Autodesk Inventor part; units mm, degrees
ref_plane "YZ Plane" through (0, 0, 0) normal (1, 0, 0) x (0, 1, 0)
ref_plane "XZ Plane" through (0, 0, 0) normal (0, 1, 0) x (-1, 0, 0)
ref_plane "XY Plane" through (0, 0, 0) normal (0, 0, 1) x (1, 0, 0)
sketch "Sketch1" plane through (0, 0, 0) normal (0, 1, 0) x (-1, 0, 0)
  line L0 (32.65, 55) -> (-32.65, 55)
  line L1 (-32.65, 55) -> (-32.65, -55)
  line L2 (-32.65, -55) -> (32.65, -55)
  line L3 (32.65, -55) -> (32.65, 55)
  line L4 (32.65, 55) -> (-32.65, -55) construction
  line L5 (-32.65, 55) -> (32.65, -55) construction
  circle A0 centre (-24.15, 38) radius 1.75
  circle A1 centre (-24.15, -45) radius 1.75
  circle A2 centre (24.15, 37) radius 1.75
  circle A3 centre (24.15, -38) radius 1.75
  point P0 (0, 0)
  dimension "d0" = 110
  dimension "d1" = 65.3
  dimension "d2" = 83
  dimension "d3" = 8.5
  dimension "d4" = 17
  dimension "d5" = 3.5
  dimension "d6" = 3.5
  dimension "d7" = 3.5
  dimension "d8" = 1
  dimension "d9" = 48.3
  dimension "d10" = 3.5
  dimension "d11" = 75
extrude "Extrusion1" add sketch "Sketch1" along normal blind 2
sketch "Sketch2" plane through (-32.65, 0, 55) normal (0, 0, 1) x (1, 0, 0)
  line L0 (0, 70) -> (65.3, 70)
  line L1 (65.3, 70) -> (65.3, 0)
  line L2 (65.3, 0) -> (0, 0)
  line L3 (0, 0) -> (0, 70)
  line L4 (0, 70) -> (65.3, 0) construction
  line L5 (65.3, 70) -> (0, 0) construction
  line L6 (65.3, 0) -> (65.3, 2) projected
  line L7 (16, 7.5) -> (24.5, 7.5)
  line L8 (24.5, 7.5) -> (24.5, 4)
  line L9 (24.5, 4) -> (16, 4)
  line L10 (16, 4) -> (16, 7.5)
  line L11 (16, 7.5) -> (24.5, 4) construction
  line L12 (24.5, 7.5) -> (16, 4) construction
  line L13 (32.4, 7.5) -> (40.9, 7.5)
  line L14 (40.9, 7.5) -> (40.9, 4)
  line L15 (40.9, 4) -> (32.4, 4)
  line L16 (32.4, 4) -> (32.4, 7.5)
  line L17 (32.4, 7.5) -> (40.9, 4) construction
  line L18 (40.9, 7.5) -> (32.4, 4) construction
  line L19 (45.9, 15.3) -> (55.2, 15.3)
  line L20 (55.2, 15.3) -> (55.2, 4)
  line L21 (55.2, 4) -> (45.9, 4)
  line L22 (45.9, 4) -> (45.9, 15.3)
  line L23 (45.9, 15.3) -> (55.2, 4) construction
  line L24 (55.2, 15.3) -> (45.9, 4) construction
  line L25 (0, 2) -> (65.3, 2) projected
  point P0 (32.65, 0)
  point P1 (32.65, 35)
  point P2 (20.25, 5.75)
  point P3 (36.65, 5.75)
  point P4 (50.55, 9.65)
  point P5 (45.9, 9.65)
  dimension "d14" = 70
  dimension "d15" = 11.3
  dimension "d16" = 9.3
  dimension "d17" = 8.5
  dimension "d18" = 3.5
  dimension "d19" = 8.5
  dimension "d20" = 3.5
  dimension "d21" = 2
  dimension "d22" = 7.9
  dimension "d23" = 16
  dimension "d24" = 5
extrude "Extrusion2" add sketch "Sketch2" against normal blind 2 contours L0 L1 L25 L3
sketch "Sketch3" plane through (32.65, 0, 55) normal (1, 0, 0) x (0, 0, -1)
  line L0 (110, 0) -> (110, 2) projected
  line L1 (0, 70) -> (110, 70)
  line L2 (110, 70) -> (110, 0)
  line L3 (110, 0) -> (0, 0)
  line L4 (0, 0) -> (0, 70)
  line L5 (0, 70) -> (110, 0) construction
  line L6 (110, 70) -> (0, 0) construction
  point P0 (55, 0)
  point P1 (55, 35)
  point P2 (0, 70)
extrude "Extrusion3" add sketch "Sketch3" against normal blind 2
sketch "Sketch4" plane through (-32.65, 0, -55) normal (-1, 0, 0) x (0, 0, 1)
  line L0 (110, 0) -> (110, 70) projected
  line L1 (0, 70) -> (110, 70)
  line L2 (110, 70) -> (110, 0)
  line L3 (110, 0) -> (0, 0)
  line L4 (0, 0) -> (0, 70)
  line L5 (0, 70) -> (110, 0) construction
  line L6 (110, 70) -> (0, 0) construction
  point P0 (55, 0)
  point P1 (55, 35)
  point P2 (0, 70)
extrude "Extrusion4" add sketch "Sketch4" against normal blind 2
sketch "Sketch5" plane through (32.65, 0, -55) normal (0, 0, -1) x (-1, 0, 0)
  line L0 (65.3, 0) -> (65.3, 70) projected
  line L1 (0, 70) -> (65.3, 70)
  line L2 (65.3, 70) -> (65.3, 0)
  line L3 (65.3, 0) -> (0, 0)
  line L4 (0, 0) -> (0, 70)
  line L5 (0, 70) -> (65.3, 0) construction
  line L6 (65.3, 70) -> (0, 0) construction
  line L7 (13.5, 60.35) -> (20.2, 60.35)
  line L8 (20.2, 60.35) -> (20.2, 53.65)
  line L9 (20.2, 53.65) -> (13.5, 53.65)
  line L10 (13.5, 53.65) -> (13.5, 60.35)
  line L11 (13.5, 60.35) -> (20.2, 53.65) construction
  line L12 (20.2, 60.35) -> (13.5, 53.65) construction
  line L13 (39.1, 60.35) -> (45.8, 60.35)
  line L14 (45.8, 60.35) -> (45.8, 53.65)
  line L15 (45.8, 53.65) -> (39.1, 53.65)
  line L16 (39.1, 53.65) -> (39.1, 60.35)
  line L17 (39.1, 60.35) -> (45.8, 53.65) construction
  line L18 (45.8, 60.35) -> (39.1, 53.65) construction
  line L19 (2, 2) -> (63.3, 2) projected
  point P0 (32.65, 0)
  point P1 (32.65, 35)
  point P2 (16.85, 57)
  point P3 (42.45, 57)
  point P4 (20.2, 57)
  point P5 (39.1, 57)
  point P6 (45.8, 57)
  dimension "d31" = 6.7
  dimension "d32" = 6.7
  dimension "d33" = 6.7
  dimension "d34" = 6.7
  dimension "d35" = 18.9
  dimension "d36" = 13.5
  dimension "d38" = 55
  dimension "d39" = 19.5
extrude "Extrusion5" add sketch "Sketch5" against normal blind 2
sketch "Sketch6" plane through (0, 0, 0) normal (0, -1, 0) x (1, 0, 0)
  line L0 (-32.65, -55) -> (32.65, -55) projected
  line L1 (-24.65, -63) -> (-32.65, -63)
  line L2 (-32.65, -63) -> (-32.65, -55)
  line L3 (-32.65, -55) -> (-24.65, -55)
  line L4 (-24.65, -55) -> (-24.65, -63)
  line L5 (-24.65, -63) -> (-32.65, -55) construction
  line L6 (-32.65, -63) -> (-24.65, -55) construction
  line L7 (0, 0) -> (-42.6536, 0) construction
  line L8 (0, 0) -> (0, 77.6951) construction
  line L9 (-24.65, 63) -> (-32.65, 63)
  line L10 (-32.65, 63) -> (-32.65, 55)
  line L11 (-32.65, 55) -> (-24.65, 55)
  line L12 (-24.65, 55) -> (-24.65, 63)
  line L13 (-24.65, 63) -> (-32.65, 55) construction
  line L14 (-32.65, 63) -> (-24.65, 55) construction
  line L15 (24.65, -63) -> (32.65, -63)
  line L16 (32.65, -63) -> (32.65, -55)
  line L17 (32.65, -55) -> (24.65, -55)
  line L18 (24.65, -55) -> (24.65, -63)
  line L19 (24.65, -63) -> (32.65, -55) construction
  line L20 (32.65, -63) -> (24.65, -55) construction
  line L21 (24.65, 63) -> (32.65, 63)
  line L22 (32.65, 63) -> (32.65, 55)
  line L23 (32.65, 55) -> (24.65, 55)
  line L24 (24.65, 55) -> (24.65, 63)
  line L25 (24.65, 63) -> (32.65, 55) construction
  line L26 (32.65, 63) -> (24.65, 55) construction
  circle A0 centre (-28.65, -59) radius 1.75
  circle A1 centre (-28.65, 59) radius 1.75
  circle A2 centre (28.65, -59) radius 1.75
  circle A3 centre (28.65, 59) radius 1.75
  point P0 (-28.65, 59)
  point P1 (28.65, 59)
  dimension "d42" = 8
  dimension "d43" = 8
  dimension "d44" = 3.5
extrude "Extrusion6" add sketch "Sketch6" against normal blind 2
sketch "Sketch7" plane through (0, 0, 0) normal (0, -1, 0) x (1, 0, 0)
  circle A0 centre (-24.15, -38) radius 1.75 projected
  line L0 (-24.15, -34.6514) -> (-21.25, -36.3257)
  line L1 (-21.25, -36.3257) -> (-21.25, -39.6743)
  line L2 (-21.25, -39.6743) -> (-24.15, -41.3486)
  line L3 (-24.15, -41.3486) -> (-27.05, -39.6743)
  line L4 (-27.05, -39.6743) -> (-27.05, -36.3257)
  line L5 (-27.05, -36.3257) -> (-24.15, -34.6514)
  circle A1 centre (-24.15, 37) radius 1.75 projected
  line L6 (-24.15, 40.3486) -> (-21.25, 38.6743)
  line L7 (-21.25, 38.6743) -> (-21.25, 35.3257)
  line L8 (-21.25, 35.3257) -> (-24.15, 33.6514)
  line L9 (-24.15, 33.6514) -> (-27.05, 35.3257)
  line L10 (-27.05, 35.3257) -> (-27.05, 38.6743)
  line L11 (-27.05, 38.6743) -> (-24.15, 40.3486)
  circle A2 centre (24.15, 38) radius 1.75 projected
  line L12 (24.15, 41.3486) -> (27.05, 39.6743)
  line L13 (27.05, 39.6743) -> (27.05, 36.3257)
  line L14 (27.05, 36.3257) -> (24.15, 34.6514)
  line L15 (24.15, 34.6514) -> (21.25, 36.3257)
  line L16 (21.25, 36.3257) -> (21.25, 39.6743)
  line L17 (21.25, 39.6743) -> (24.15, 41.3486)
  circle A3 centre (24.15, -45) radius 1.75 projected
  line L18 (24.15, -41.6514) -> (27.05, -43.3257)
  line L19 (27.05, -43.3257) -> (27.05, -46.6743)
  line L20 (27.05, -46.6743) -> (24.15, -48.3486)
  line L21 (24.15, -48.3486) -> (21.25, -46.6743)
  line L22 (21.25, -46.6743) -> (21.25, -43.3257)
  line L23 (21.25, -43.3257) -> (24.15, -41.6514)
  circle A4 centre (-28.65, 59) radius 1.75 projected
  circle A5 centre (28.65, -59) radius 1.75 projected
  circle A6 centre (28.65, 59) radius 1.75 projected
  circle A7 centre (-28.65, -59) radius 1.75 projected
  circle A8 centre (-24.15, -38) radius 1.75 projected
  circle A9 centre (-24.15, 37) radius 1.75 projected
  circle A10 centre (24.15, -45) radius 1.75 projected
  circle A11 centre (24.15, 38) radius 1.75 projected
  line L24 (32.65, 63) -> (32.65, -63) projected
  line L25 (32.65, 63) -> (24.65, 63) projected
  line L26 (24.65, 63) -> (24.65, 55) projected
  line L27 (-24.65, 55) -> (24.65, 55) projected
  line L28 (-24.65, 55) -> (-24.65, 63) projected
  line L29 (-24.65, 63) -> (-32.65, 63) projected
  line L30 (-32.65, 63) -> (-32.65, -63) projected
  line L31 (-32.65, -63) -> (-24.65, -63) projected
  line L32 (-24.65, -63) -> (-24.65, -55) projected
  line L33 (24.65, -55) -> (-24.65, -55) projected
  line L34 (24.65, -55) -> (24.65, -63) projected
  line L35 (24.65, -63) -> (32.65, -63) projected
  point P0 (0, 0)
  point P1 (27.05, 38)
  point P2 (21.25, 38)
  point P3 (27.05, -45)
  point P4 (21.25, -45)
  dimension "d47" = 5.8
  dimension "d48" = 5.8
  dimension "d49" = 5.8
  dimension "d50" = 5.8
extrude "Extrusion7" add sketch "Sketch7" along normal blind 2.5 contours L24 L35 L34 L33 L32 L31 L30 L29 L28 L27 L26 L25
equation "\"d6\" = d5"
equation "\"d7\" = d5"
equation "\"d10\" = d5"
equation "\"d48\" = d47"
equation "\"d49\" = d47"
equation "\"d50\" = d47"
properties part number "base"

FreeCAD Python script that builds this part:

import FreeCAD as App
import Part
import Sketcher

V = App.Vector
Q = App.Units.Quantity

doc = App.newDocument("Part")
params = doc.addObject("Spreadsheet::Sheet", "Params")
for row, (alias, value) in enumerate([
    ("sketch1_diameter", "3.5 mm"),
    ("sketch1_height", "110 mm"),
    ("sketch1_width", "65.3 mm"),
    ("pad1_length", "2 mm"),
    ("sketch2_width", "8.5 mm"),
    ("sketch2_width2", "9.3 mm"),
    ("sketch2_height", "3.5 mm"),
    ("sketch2_height2", "11.3 mm"),
    ("sketch2_width3", "65.3 mm"),
    ("pad2_length", "2 mm"),
    ("sketch3_width", "70 mm"),
    ("sketch3_height", "110 mm"),
    ("pad3_length", "2 mm"),
    ("sketch4_width", "70 mm"),
    ("sketch4_height", "110 mm"),
    ("pad4_length", "2 mm"),
    ("sketch5_width", "6.7 mm"),
    ("sketch5_height", "70 mm"),
    ("pad5_length", "2 mm"),
    ("sketch6_diameter", "3.5 mm"),
    ("sketch6_width", "8 mm"),
    ("pad6_length", "2 mm"),
    ("sketch7_diameter", "3.5 mm"),
    ("sketch7_width", "8 mm"),
    ("sketch7_height", "126 mm"),
    ("sketch7_width2", "49.3 mm"),
    ("pad7_length", "2.5 mm"),
], start=1):
    params.set(f"A{row}", alias)
    params.set(f"B{row}", "=" + value)
    params.setAlias(f"B{row}", alias)

body = doc.addObject("PartDesign::Body", "Body")

sketch1 = body.newObject("Sketcher::SketchObject", "Sketch")
sketch1.AttachmentSupport = (doc.getObject("XZ_Plane"), [""])
sketch1.MapMode = "FlatFace"
sketch1.addGeometry([
    Part.LineSegment(V(-32.6, -55, 0), V(-32.6, 55, 0)),
    Part.LineSegment(V(-32.6, 55, 0), V(32.6, 55, 0)),
    Part.LineSegment(V(32.6, 55, 0), V(32.6, -55, 0)),
    Part.LineSegment(V(32.6, -55, 0), V(-32.6, -55, 0)),
    Part.Circle(V(24.1, -45, 0), V(0, 0, 1), 1.8),
    Part.Circle(V(-24.1, -38, 0), V(0, 0, 1), 1.8),
    Part.Circle(V(24.1, 38, 0), V(0, 0, 1), 1.8),
    Part.Circle(V(-24.1, 37, 0), V(0, 0, 1), 1.8),
], False)
sketch1.addConstraint([
    Sketcher.Constraint("Coincident", 0, 2, 1, 1),
    Sketcher.Constraint("Coincident", 1, 2, 2, 1),
    Sketcher.Constraint("Coincident", 2, 2, 3, 1),
    Sketcher.Constraint("Coincident", 3, 2, 0, 1),
    Sketcher.Constraint("Vertical", 0),
    Sketcher.Constraint("Horizontal", 1),
    Sketcher.Constraint("Vertical", 2),
    Sketcher.Constraint("Horizontal", 3),
    Sketcher.Constraint("Equal", 4, 5),
    Sketcher.Constraint("Equal", 5, 6),
    Sketcher.Constraint("Equal", 6, 7),
    Sketcher.Constraint("Symmetric", 5, 3, 6, 3, -1, 1),
    Sketcher.Constraint("Symmetric", 0, 2, 2, 2, -1, 1),
    Sketcher.Constraint("Vertical", 4, 3, 6, 3),
    Sketcher.Constraint("Vertical", 5, 3, 7, 3),
    Sketcher.Constraint("Diameter", 4, Q("3.5 mm")),
    Sketcher.Constraint("DistanceY", 0, 1, 0, 2, Q("110 mm")),
    Sketcher.Constraint("DistanceX", 1, 1, 1, 2, Q("65.3 mm")),
    Sketcher.Constraint("DistanceY", 4, 3, 6, 3, Q("83 mm")),
    Sketcher.Constraint("DistanceY", 7, 3, 6, 3, Q("1 mm")),
    Sketcher.Constraint("DistanceY", 5, 3, 7, 3, Q("75 mm")),
    Sketcher.Constraint("DistanceX", 5, 3, 4, 3, Q("48.3 mm")),
])
sketch1.setExpression("Constraints[15]", "Params.sketch1_diameter")
sketch1.setExpression("Constraints[16]", "Params.sketch1_height")
sketch1.setExpression("Constraints[17]", "Params.sketch1_width")
pad1 = body.newObject("PartDesign::Pad", "Pad")
pad1.Profile = sketch1
pad1.setExpression("Length", "Params.pad1_length")
pad1.Reversed = True

sketch2 = body.newObject("Sketcher::SketchObject", "Sketch001")
sketch2.AttachmentSupport = (doc.getObject("XY_Plane"), [""])
sketch2.MapMode = "FlatFace"
sketch2.AttachmentOffset = App.Placement(V(0, 0, 55), App.Rotation())
sketch2.addGeometry([
    Part.LineSegment(V(32.6, 70, 0), V(-32.6, 70, 0)),
    Part.LineSegment(V(-32.6, 70, 0), V(-32.6, 2, 0)),
    Part.LineSegment(V(-32.6, 2, 0), V(32.6, 2, 0)),
    Part.LineSegment(V(32.6, 2, 0), V(32.6, 70, 0)),
    Part.LineSegment(V(-16.6, 4, 0), V(-16.6, 7.5, 0)),
    Part.LineSegment(V(-16.6, 7.5, 0), V(-8.2, 7.5, 0)),
    Part.LineSegment(V(-8.2, 7.5, 0), V(-8.2, 4, 0)),
    Part.LineSegment(V(-8.2, 4, 0), V(-16.6, 4, 0)),
    Part.LineSegment(V(-0.2, 4, 0), V(-0.2, 7.5, 0)),
    Part.LineSegment(V(-0.2, 7.5, 0), V(8.2, 7.5, 0)),
    Part.LineSegment(V(8.2, 7.5, 0), V(8.2, 4, 0)),
    Part.LineSegment(V(8.2, 4, 0), V(-0.2, 4, 0)),
    Part.LineSegment(V(13.2, 4, 0), V(13.2, 15.3, 0)),
    Part.LineSegment(V(13.2, 15.3, 0), V(22.6, 15.3, 0)),
    Part.LineSegment(V(22.6, 15.3, 0), V(22.6, 4, 0)),
    Part.LineSegment(V(22.6, 4, 0), V(13.2, 4, 0)),
], False)
sketch2.addConstraint([
    Sketcher.Constraint("Coincident", 0, 2, 1, 1),
    Sketcher.Constraint("Coincident", 1, 2, 2, 1),
    Sketcher.Constraint("Coincident", 2, 2, 3, 1),
    Sketcher.Constraint("Coincident", 3, 2, 0, 1),
    Sketcher.Constraint("Coincident", 4, 2, 5, 1),
    Sketcher.Constraint("Coincident", 5, 2, 6, 1),
    Sketcher.Constraint("Coincident", 6, 2, 7, 1),
    Sketcher.Constraint("Coincident", 7, 2, 4, 1),
    Sketcher.Constraint("Coincident", 8, 2, 9, 1),
    Sketcher.Constraint("Coincident", 9, 2, 10, 1),
    Sketcher.Constraint("Coincident", 10, 2, 11, 1),
    Sketcher.Constraint("Coincident", 11, 2, 8, 1),
    Sketcher.Constraint("Coincident", 12, 2, 13, 1),
    Sketcher.Constraint("Coincident", 13, 2, 14, 1),
    Sketcher.Constraint("Coincident", 14, 2, 15, 1),
    Sketcher.Constraint("Coincident", 15, 2, 12, 1),
    Sketcher.Constraint("Horizontal", 0),
    Sketcher.Constraint("Vertical", 1),
    Sketcher.Constraint("Horizontal", 2),
    Sketcher.Constraint("Vertical", 3),
    Sketcher.Constraint("Vertical", 4),
    Sketcher.Constraint("Horizontal", 5),
    Sketcher.Constraint("Vertical", 6),
    Sketcher.Constraint("Horizontal", 7),
    Sketcher.Constraint("Vertical", 8),
    Sketcher.Constraint("Horizontal", 9),
    Sketcher.Constraint("Vertical", 10),
    Sketcher.Constraint("Horizontal", 11),
    Sketcher.Constraint("Vertical", 12),
    Sketcher.Constraint("Horizontal", 13),
    Sketcher.Constraint("Vertical", 14),
    Sketcher.Constraint("Horizontal", 15),
    Sketcher.Constraint("Horizontal", 5, 2, 8, 2),
    Sketcher.Constraint("Horizontal", 7, 2, 10, 2),
    Sketcher.Constraint("Horizontal", 11, 2, 14, 2),
    Sketcher.Constraint("Equal", 7, 9),
    Sketcher.Constraint("DistanceX", 5, 1, 5, 2, Q("8.5 mm")),
    Sketcher.Constraint("DistanceX", 13, 1, 13, 2, Q("9.3 mm")),
    Sketcher.Constraint("DistanceY", 4, 1, 4, 2, Q("3.5 mm")),
    Sketcher.Constraint("DistanceY", 12, 1, 12, 2, Q("11.3 mm")),
    Sketcher.Constraint("DistanceY", -1, 1, 0, 2, Q("70 mm")),
    Sketcher.Constraint("DistanceY", -1, 1, 1, 2, Q("2 mm")),
    Sketcher.Constraint("DistanceX", 1, 2, 4, 2, Q("16 mm")),
    Sketcher.Constraint("DistanceY", 1, 2, 6, 2, Q("2 mm")),
    Sketcher.Constraint("DistanceX", 9, 2, 12, 2, Q("5 mm")),
    Sketcher.Constraint("DistanceX", 5, 2, 8, 2, Q("7.9 mm")),
    Sketcher.Constraint("DistanceX", 0, 2, 0, 1, Q("65.3 mm")),
    Sketcher.Constraint("DistanceX", 0, 2, -1, 1, Q("32.65 mm")),
])
sketch2.setExpression("Constraints[36]", "Params.sketch2_width")
sketch2.setExpression("Constraints[37]", "Params.sketch2_width2")
sketch2.setExpression("Constraints[38]", "Params.sketch2_height")
sketch2.setExpression("Constraints[39]", "Params.sketch2_height2")
sketch2.setExpression("Constraints[46]", "Params.sketch2_width3")
pad2 = body.newObject("PartDesign::Pad", "Pad001")
pad2.Profile = sketch2
pad2.setExpression("Length", "Params.pad2_length")
pad2.Reversed = True

sketch3 = body.newObject("Sketcher::SketchObject", "Sketch002")
sketch3.AttachmentSupport = (doc.getObject("YZ_Plane"), [""])
sketch3.MapMode = "FlatFace"
sketch3.AttachmentOffset = App.Placement(V(0, 0, 32.65), App.Rotation())
sketch3.addGeometry([
    Part.LineSegment(V(0, 55, 0), V(0, -55, 0)),
    Part.LineSegment(V(0, -55, 0), V(70, -55, 0)),
    Part.LineSegment(V(70, -55, 0), V(70, 55, 0)),
    Part.LineSegment(V(70, 55, 0), V(0, 55, 0)),
], False)
sketch3.addConstraint([
    Sketcher.Constraint("Coincident", 0, 2, 1, 1),
    Sketcher.Constraint("Coincident", 1, 2, 2, 1),
    Sketcher.Constraint("Coincident", 2, 2, 3, 1),
    Sketcher.Constraint("Coincident", 3, 2, 0, 1),
    Sketcher.Constraint("Vertical", 0),
    Sketcher.Constraint("Horizontal", 1),
    Sketcher.Constraint("Vertical", 2),
    Sketcher.Constraint("Horizontal", 3),
    Sketcher.Constraint("Symmetric", 0, 2, 3, 2, -1, 1),
    Sketcher.Constraint("DistanceX", 1, 1, 1, 2, Q("70 mm")),
    Sketcher.Constraint("DistanceY", 0, 2, 0, 1, Q("110 mm")),
])
sketch3.setExpression("Constraints[9]", "Params.sketch3_width")
sketch3.setExpression("Constraints[10]", "Params.sketch3_height")
pad3 = body.newObject("PartDesign::Pad", "Pad002")
pad3.Profile = sketch3
pad3.setExpression("Length", "Params.pad3_length")
pad3.Reversed = True

sketch4 = body.newObject("Sketcher::SketchObject", "Sketch003")
sketch4.AttachmentSupport = (doc.getObject("YZ_Plane"), [""])
sketch4.MapMode = "FlatFace"
sketch4.AttachmentOffset = App.Placement(V(0, 0, -32.65), App.Rotation())
sketch4.addGeometry([
    Part.LineSegment(V(0, -55, 0), V(0, 55, 0)),
    Part.LineSegment(V(0, 55, 0), V(70, 55, 0)),
    Part.LineSegment(V(70, 55, 0), V(70, -55, 0)),
    Part.LineSegment(V(70, -55, 0), V(0, -55, 0)),
], False)
sketch4.addConstraint([
    Sketcher.Constraint("Coincident", 0, 2, 1, 1),
    Sketcher.Constraint("Coincident", 1, 2, 2, 1),
    Sketcher.Constraint("Coincident", 2, 2, 3, 1),
    Sketcher.Constraint("Coincident", 3, 2, 0, 1),
    Sketcher.Constraint("Vertical", 0),
    Sketcher.Constraint("Horizontal", 1),
    Sketcher.Constraint("Vertical", 2),
    Sketcher.Constraint("Horizontal", 3),
    Sketcher.Constraint("Symmetric", 0, 2, 3, 2, -1, 1),
    Sketcher.Constraint("DistanceX", 1, 1, 1, 2, Q("70 mm")),
    Sketcher.Constraint("DistanceY", 0, 1, 0, 2, Q("110 mm")),
])
sketch4.setExpression("Constraints[9]", "Params.sketch4_width")
sketch4.setExpression("Constraints[10]", "Params.sketch4_height")
pad4 = body.newObject("PartDesign::Pad", "Pad003")
pad4.Profile = sketch4
pad4.setExpression("Length", "Params.pad4_length")

sketch5 = body.newObject("Sketcher::SketchObject", "Sketch004")
sketch5.AttachmentSupport = (doc.getObject("XY_Plane"), [""])
sketch5.MapMode = "FlatFace"
sketch5.AttachmentOffset = App.Placement(V(0, 0, -55), App.Rotation())
sketch5.addGeometry([
    Part.LineSegment(V(33, 0, 0), V(-33, 0, 0)),
    Part.LineSegment(V(-33, 0, 0), V(-33, 70, 0)),
    Part.LineSegment(V(-33, 70, 0), V(33, 70, 0)),
    Part.LineSegment(V(33, 70, 0), V(33, 0, 0)),
    Part.LineSegment(V(19, 54, 0), V(19, 60, 0)),
    Part.LineSegment(V(19, 60, 0), V(12, 60, 0)),
    Part.LineSegment(V(12, 60, 0), V(12, 54, 0)),
    Part.LineSegment(V(12, 54, 0), V(19, 54, 0)),
    Part.LineSegment(V(-6, 54, 0), V(-6, 60, 0)),
    Part.LineSegment(V(-6, 60, 0), V(-13, 60, 0)),
    Part.LineSegment(V(-13, 60, 0), V(-13, 54, 0)),
    Part.LineSegment(V(-13, 54, 0), V(-6, 54, 0)),
], False)
sketch5.addConstraint([
    Sketcher.Constraint("Coincident", 0, 2, 1, 1),
    Sketcher.Constraint("Coincident", 1, 2, 2, 1),
    Sketcher.Constraint("Coincident", 2, 2, 3, 1),
    Sketcher.Constraint("Coincident", 3, 2, 0, 1),
    Sketcher.Constraint("Coincident", 4, 2, 5, 1),
    Sketcher.Constraint("Coincident", 5, 2, 6, 1),
    Sketcher.Constraint("Coincident", 6, 2, 7, 1),
    Sketcher.Constraint("Coincident", 7, 2, 4, 1),
    Sketcher.Constraint("Coincident", 8, 2, 9, 1),
    Sketcher.Constraint("Coincident", 9, 2, 10, 1),
    Sketcher.Constraint("Coincident", 10, 2, 11, 1),
    Sketcher.Constraint("Coincident", 11, 2, 8, 1),
    Sketcher.Constraint("Horizontal", 0),
    Sketcher.Constraint("Vertical", 1),
    Sketcher.Constraint("Horizontal", 2),
    Sketcher.Constraint("Vertical", 3),
    Sketcher.Constraint("Vertical", 4),
    Sketcher.Constraint("Horizontal", 5),
    Sketcher.Constraint("Vertical", 6),
    Sketcher.Constraint("Horizontal", 7),
    Sketcher.Constraint("Vertical", 8),
    Sketcher.Constraint("Horizontal", 9),
    Sketcher.Constraint("Vertical", 10),
    Sketcher.Constraint("Horizontal", 11),
    Sketcher.Constraint("Symmetric", 0, 2, 3, 2, -1, 1),
    Sketcher.Constraint("Horizontal", 5, 2, 8, 2),
    Sketcher.Constraint("Horizontal", 7, 2, 10, 2),
    Sketcher.Constraint("Equal", 7, 9),
    Sketcher.Constraint("Equal", 11, 4),
    Sketcher.Constraint("DistanceX", 5, 2, 5, 1, Q("6.7 mm")),
    Sketcher.Constraint("DistanceX", 4, 2, 2, 2, Q("13.5 mm")),
    Sketcher.Constraint("DistanceX", 8, 2, 5, 2, Q("18.9 mm")),
    Sketcher.Constraint("DistanceX", 1, 2, 9, 2, Q("19.5 mm")),
    Sketcher.Constraint("DistanceY", 1, 1, 1, 2, Q("70 mm")),
    Sketcher.Constraint("DistanceY", -1, 1, 4, 2, Q("60.35 mm")),
])
sketch5.setExpression("Constraints[29]", "Params.sketch5_width")
sketch5.setExpression("Constraints[33]", "Params.sketch5_height")
pad5 = body.newObject("PartDesign::Pad", "Pad004")
pad5.Profile = sketch5
pad5.setExpression("Length", "Params.pad5_length")

sketch6 = body.newObject("Sketcher::SketchObject", "Sketch005")
sketch6.AttachmentSupport = (doc.getObject("XZ_Plane"), [""])
sketch6.MapMode = "FlatFace"
sketch6.addGeometry([
    Part.LineSegment(V(32.6, -55, 0), V(24.6, -55, 0)),
    Part.LineSegment(V(24.6, -55, 0), V(24.6, -63, 0)),
    Part.LineSegment(V(24.6, -63, 0), V(32.6, -63, 0)),
    Part.LineSegment(V(32.6, -63, 0), V(32.6, -55, 0)),
    Part.Circle(V(28.6, -59, 0), V(0, 0, 1), 1.8),
    Part.LineSegment(V(-24.6, -55, 0), V(-32.6, -55, 0)),
    Part.LineSegment(V(-32.6, -55, 0), V(-32.6, -63, 0)),
    Part.LineSegment(V(-32.6, -63, 0), V(-24.6, -63, 0)),
    Part.LineSegment(V(-24.6, -63, 0), V(-24.6, -55, 0)),
    Part.Circle(V(-28.6, -59, 0), V(0, 0, 1), 1.8),
    Part.LineSegment(V(-24.6, 55, 0), V(-24.6, 63, 0)),
    Part.LineSegment(V(-24.6, 63, 0), V(-32.6, 63, 0)),
    Part.LineSegment(V(-32.6, 63, 0), V(-32.6, 55, 0)),
    Part.LineSegment(V(-32.6, 55, 0), V(-24.6, 55, 0)),
    Part.Circle(V(-28.6, 59, 0), V(0, 0, 1), 1.8),
    Part.LineSegment(V(32.6, 63, 0), V(24.6, 63, 0)),
    Part.LineSegment(V(24.6, 63, 0), V(24.6, 55, 0)),
    Part.LineSegment(V(24.6, 55, 0), V(32.6, 55, 0)),
    Part.LineSegment(V(32.6, 55, 0), V(32.6, 63, 0)),
    Part.Circle(V(28.6, 59, 0), V(0, 0, 1), 1.8),
], False)
sketch6.addConstraint([
    Sketcher.Constraint("Coincident", 0, 2, 1, 1),
    Sketcher.Constraint("Coincident", 1, 2, 2, 1),
    Sketcher.Constraint("Coincident", 2, 2, 3, 1),
    Sketcher.Constraint("Coincident", 3, 2, 0, 1),
    Sketcher.Constraint("Coincident", 5, 2, 6, 1),
    Sketcher.Constraint("Coincident", 6, 2, 7, 1),
    Sketcher.Constraint("Coincident", 7, 2, 8, 1),
    Sketcher.Constraint("Coincident", 8, 2, 5, 1),
    Sketcher.Constraint("Coincident", 10, 2, 11, 1),
    Sketcher.Constraint("Coincident", 11, 2, 12, 1),
    Sketcher.Constraint("Coincident", 12, 2, 13, 1),
    Sketcher.Constraint("Coincident", 13, 2, 10, 1),
    Sketcher.Constraint("Coincident", 15, 2, 16, 1),
    Sketcher.Constraint("Coincident", 16, 2, 17, 1),
    Sketcher.Constraint("Coincident", 17, 2, 18, 1),
    Sketcher.Constraint("Coincident", 18, 2, 15, 1),
    Sketcher.Constraint("Horizontal", 0),
    Sketcher.Constraint("Vertical", 1),
    Sketcher.Constraint("Horizontal", 2),
    Sketcher.Constraint("Vertical", 3),
    Sketcher.Constraint("Horizontal", 5),
    Sketcher.Constraint("Vertical", 6),
    Sketcher.Constraint("Horizontal", 7),
    Sketcher.Constraint("Vertical", 8),
    Sketcher.Constraint("Vertical", 10),
    Sketcher.Constraint("Horizontal", 11),
    Sketcher.Constraint("Vertical", 12),
    Sketcher.Constraint("Horizontal", 13),
    Sketcher.Constraint("Horizontal", 15),
    Sketcher.Constraint("Vertical", 16),
    Sketcher.Constraint("Horizontal", 17),
    Sketcher.Constraint("Vertical", 18),
    Sketcher.Constraint("Equal", 4, 9),
    Sketcher.Constraint("Equal", 9, 14),
    Sketcher.Constraint("Equal", 14, 19),
    Sketcher.Constraint("Symmetric", 4, 3, 14, 3, -1, 1),
    Sketcher.Constraint("Symmetric", 9, 3, 19, 3, -1, 1),
    Sketcher.Constraint("Symmetric", 1, 2, 10, 2, -1, 1),
    Sketcher.Constraint("Symmetric", 3, 2, 12, 2, -1, 1),
    Sketcher.Constraint("Symmetric", 7, 2, 15, 2, -1, 1),
    Sketcher.Constraint("Symmetric", 5, 2, 17, 2, -1, 1),
    Sketcher.Constraint("Symmetric", 4, 3, 9, 3, -2),
    Sketcher.Constraint("Symmetric", 3, 2, 5, 2, -2),
    Sketcher.Constraint("Symmetric", 1, 2, 7, 2, -2),
    Sketcher.Constraint("Equal", 17, 1),
    Sketcher.Constraint("Diameter", 4, Q("3.5 mm")),
    Sketcher.Constraint("DistanceX", 0, 2, 0, 1, Q("8 mm")),
    Sketcher.Constraint("DistanceY", 4, 3, -1, 1, Q("59 mm")),
    Sketcher.Constraint("DistanceY", 0, 2, -1, 1, Q("55 mm")),
    Sketcher.Constraint("DistanceX", 0, 2, 4, 3, Q("4 mm")),
    Sketcher.Constraint("DistanceX", 9, 3, 4, 3, Q("57.3 mm")),
])
sketch6.setExpression("Constraints[45]", "Params.sketch6_diameter")
sketch6.setExpression("Constraints[46]", "Params.sketch6_width")
pad6 = body.newObject("PartDesign::Pad", "Pad005")
pad6.Profile = sketch6
pad6.setExpression("Length", "Params.pad6_length")
pad6.Reversed = True

sketch7 = body.newObject("Sketcher::SketchObject", "Sketch006")
sketch7.AttachmentSupport = (doc.getObject("XZ_Plane"), [""])
sketch7.MapMode = "FlatFace"
sketch7.addGeometry([
    Part.LineSegment(V(32.6, -63, 0), V(32.6, 63, 0)),
    Part.LineSegment(V(32.6, 63, 0), V(24.6, 63, 0)),
    Part.LineSegment(V(24.6, 63, 0), V(24.6, 55, 0)),
    Part.LineSegment(V(24.6, 55, 0), V(-24.6, 55, 0)),
    Part.LineSegment(V(-24.6, 55, 0), V(-24.6, 63, 0)),
    Part.LineSegment(V(-24.6, 63, 0), V(-32.6, 63, 0)),
    Part.LineSegment(V(-32.6, 63, 0), V(-32.6, -63, 0)),
    Part.LineSegment(V(-32.6, -63, 0), V(-24.6, -63, 0)),
    Part.LineSegment(V(-24.6, -63, 0), V(-24.6, -55, 0)),
    Part.LineSegment(V(-24.6, -55, 0), V(24.6, -55, 0)),
    Part.LineSegment(V(24.6, -55, 0), V(24.6, -63, 0)),
    Part.LineSegment(V(24.6, -63, 0), V(32.6, -63, 0)),
    Part.Circle(V(-28.6, -59, 0), V(0, 0, 1), 1.8),
    Part.LineSegment(V(-27.1, -36.3, 0), V(-24.1, -34.7, 0)),
    Part.LineSegment(V(-24.1, -34.7, 0), V(-21.2, -36.3, 0)),
    Part.LineSegment(V(-21.2, -36.3, 0), V(-21.2, -39.7, 0)),
    Part.LineSegment(V(-21.2, -39.7, 0), V(-24.1, -41.3, 0)),
    Part.LineSegment(V(-24.1, -41.3, 0), V(-27.1, -39.7, 0)),
    Part.LineSegment(V(-27.1, -39.7, 0), V(-27.1, -36.3, 0)),
    Part.Circle(V(28.6, -59, 0), V(0, 0, 1), 1.8),
    Part.LineSegment(V(21.2, -43.3, 0), V(24.1, -41.7, 0)),
    Part.LineSegment(V(24.1, -41.7, 0), V(27.1, -43.3, 0)),
    Part.LineSegment(V(27.1, -43.3, 0), V(27.1, -46.7, 0)),
    Part.LineSegment(V(27.1, -46.7, 0), V(24.1, -48.3, 0)),
    Part.LineSegment(V(24.1, -48.3, 0), V(21.2, -46.7, 0)),
    Part.LineSegment(V(21.2, -46.7, 0), V(21.2, -43.3, 0)),
    Part.LineSegment(V(-27.1, 38.7, 0), V(-24.1, 40.3, 0)),
    Part.LineSegment(V(-24.1, 40.3, 0), V(-21.2, 38.7, 0)),
    Part.LineSegment(V(-21.2, 38.7, 0), V(-21.2, 35.3, 0)),
    Part.LineSegment(V(-21.2, 35.3, 0), V(-24.1, 33.7, 0)),
    Part.LineSegment(V(-24.1, 33.7, 0), V(-27.1, 35.3, 0)),
    Part.LineSegment(V(-27.1, 35.3, 0), V(-27.1, 38.7, 0)),
    Part.Circle(V(-28.6, 59, 0), V(0, 0, 1), 1.8),
    Part.LineSegment(V(21.2, 39.7, 0), V(24.1, 41.3, 0)),
    Part.LineSegment(V(24.1, 41.3, 0), V(27.1, 39.7, 0)),
    Part.LineSegment(V(27.1, 39.7, 0), V(27.1, 36.3, 0)),
    Part.LineSegment(V(27.1, 36.3, 0), V(24.1, 34.7, 0)),
    Part.LineSegment(V(24.1, 34.7, 0), V(21.2, 36.3, 0)),
    Part.LineSegment(V(21.2, 36.3, 0), V(21.2, 39.7, 0)),
    Part.Circle(V(28.6, 59, 0), V(0, 0, 1), 1.8),
], False)
sketch7.addConstraint([
    Sketcher.Constraint("Coincident", 0, 2, 1, 1),
    Sketcher.Constraint("Coincident", 1, 2, 2, 1),
    Sketcher.Constraint("Coincident", 2, 2, 3, 1),
    Sketcher.Constraint("Coincident", 3, 2, 4, 1),
    Sketcher.Constraint("Coincident", 4, 2, 5, 1),
    Sketcher.Constraint("Coincident", 5, 2, 6, 1),
    Sketcher.Constraint("Coincident", 6, 2, 7, 1),
    Sketcher.Constraint("Coincident", 7, 2, 8, 1),
    Sketcher.Constraint("Coincident", 8, 2, 9, 1),
    Sketcher.Constraint("Coincident", 9, 2, 10, 1),
    Sketcher.Constraint("Coincident", 10, 2, 11, 1),
    Sketcher.Constraint("Coincident", 11, 2, 0, 1),
    Sketcher.Constraint("Coincident", 13, 2, 14, 1),
    Sketcher.Constraint("Coincident", 14, 2, 15, 1),
    Sketcher.Constraint("Coincident", 15, 2, 16, 1),
    Sketcher.Constraint("Coincident", 16, 2, 17, 1),
    Sketcher.Constraint("Coincident", 17, 2, 18, 1),
    Sketcher.Constraint("Coincident", 18, 2, 13, 1),
    Sketcher.Constraint("Coincident", 20, 2, 21, 1),
    Sketcher.Constraint("Coincident", 21, 2, 22, 1),
    Sketcher.Constraint("Coincident", 22, 2, 23, 1),
    Sketcher.Constraint("Coincident", 23, 2, 24, 1),
    Sketcher.Constraint("Coincident", 24, 2, 25, 1),
    Sketcher.Constraint("Coincident", 25, 2, 20, 1),
    Sketcher.Constraint("Coincident", 26, 2, 27, 1),
    Sketcher.Constraint("Coincident", 27, 2, 28, 1),
    Sketcher.Constraint("Coincident", 28, 2, 29, 1),
    Sketcher.Constraint("Coincident", 29, 2, 30, 1),
    Sketcher.Constraint("Coincident", 30, 2, 31, 1),
    Sketcher.Constraint("Coincident", 31, 2, 26, 1),
    Sketcher.Constraint("Coincident", 33, 2, 34, 1),
    Sketcher.Constraint("Coincident", 34, 2, 35, 1),
    Sketcher.Constraint("Coincident", 35, 2, 36, 1),
    Sketcher.Constraint("Coincident", 36, 2, 37, 1),
    Sketcher.Constraint("Coincident", 37, 2, 38, 1),
    Sketcher.Constraint("Coincident", 38, 2, 33, 1),
    Sketcher.Constraint("Vertical", 0),
    Sketcher.Constraint("Horizontal", 1),
    Sketcher.Constraint("Vertical", 2),
    Sketcher.Constraint("Horizontal", 3),
    Sketcher.Constraint("Vertical", 4),
    Sketcher.Constraint("Horizontal", 5),
    Sketcher.Constraint("Vertical", 6),
    Sketcher.Constraint("Horizontal", 7),
    Sketcher.Constraint("Vertical", 8),
    Sketcher.Constraint("Horizontal", 9),
    Sketcher.Constraint("Vertical", 10),
    Sketcher.Constraint("Horizontal", 11),
    Sketcher.Constraint("Vertical", 15),
    Sketcher.Constraint("Vertical", 18),
    Sketcher.Constraint("Vertical", 22),
    Sketcher.Constraint("Vertical", 25),
    Sketcher.Constraint("Vertical", 28),
    Sketcher.Constraint("Vertical", 31),
    Sketcher.Constraint("Vertical", 35),
    Sketcher.Constraint("Vertical", 38),
    Sketcher.Constraint("Equal", 12, 19),
    Sketcher.Constraint("Equal", 19, 32),
    Sketcher.Constraint("Equal", 32, 39),
    Sketcher.Constraint("Symmetric", 19, 3, 32, 3, -1, 1),
    Sketcher.Constraint("Symmetric", 12, 3, 39, 3, -1, 1),
    Sketcher.Constraint("Symmetric", 0, 2, 6, 2, -1, 1),
    Sketcher.Constraint("Symmetric", 2, 2, 8, 2, -1, 1),
    Sketcher.Constraint("Symmetric", 4, 2, 10, 2, -1, 1),
    Sketcher.Constraint("Symmetric", 16, 2, 33, 2, -1, 1),
    Sketcher.Constraint("Symmetric", 17, 2, 34, 2, -1, 1),
    Sketcher.Constraint("Symmetric", 13, 2, 36, 2, -1, 1),
    Sketcher.Constraint("Symmetric", 14, 2, 37, 2, -1, 1),
    Sketcher.Constraint("Symmetric", 12, 3, 19, 3, -2),
    Sketcher.Constraint("Symmetric", 1, 2, 4, 2, -2),
    Sketcher.Constraint("Parallel", 13, 16),
    Sketcher.Constraint("Parallel", 14, 17),
    Sketcher.Constraint("Parallel", 16, 20),
    Sketcher.Constraint("Parallel", 17, 21),
    Sketcher.Constraint("Parallel", 20, 23),
    Sketcher.Constraint("Parallel", 21, 24),
    Sketcher.Constraint("Parallel", 23, 26),
    Sketcher.Constraint("Parallel", 24, 27),
    Sketcher.Constraint("Parallel", 26, 29),
    Sketcher.Constraint("Parallel", 27, 30),
    Sketcher.Constraint("Parallel", 29, 33),
    Sketcher.Constraint("Parallel", 33, 36),
    Sketcher.Constraint("Horizontal", 15, 2, 17, 2),
    Sketcher.Constraint("Horizontal", 14, 2, 18, 2),
    Sketcher.Constraint("Horizontal", 22, 2, 24, 2),
    Sketcher.Constraint("Horizontal", 21, 2, 25, 2),
    Sketcher.Constraint("Horizontal", 28, 2, 30, 2),
    Sketcher.Constraint("Horizontal", 27, 2, 31, 2),
    Sketcher.Constraint("Vertical", 13, 2, 16, 2),
    Sketcher.Constraint("Vertical", 16, 2, 26, 2),
    Sketcher.Constraint("Vertical", 15, 2, 27, 2),
    Sketcher.Constraint("Vertical", 23, 2, 33, 2),
    Sketcher.Constraint("Vertical", 22, 2, 34, 2),
    Sketcher.Constraint("Equal", 11, 2),
    Sketcher.Constraint("Equal", 18, 22),
    Sketcher.Constraint("Equal", 25, 28),
    Sketcher.Constraint("Diameter", 12, Q("3.5 mm")),
    Sketcher.Constraint("DistanceX", 17, 2, 15, 2, Q("5.8 mm")),
    Sketcher.Constraint("DistanceX", 1, 2, 1, 1, Q("8 mm")),
    Sketcher.Constraint("DistanceY", 0, 1, 0, 2, Q("126 mm")),
    Sketcher.Constraint("Angle", 13, Q("29.9998 deg")),
    Sketcher.Constraint("DistanceX", 3, 2, 3, 1, Q("49.3 mm")),
    Sketcher.Constraint("DistanceY", 12, 3, -1, 1, Q("59 mm")),
    Sketcher.Constraint("DistanceX", 39, 3, 0, 2, Q("4 mm")),
    Sketcher.Constraint("DistanceX", 8, 2, 13, 2, Q("0.5 mm")),
    Sketcher.Constraint("DistanceY", 15, 2, 15, 1, Q("3.3486 mm")),
    Sketcher.Constraint("DistanceY", 20, 2, 15, 2, Q("1.977 mm")),
    Sketcher.Constraint("DistanceY", 13, 2, -1, 1, Q("34.6514 mm")),
    Sketcher.Constraint("DistanceY", -1, 1, 26, 2, Q("40.3486 mm")),
])
sketch7.setExpression("Constraints[96]", "Params.sketch7_diameter")
sketch7.setExpression("Constraints[98]", "Params.sketch7_width")
sketch7.setExpression("Constraints[99]", "Params.sketch7_height")
sketch7.setExpression("Constraints[101]", "Params.sketch7_width2")
pad7 = body.newObject("PartDesign::Pad", "Pad006")
pad7.Profile = sketch7
pad7.setExpression("Length", "Params.pad7_length")

doc.recompute()
